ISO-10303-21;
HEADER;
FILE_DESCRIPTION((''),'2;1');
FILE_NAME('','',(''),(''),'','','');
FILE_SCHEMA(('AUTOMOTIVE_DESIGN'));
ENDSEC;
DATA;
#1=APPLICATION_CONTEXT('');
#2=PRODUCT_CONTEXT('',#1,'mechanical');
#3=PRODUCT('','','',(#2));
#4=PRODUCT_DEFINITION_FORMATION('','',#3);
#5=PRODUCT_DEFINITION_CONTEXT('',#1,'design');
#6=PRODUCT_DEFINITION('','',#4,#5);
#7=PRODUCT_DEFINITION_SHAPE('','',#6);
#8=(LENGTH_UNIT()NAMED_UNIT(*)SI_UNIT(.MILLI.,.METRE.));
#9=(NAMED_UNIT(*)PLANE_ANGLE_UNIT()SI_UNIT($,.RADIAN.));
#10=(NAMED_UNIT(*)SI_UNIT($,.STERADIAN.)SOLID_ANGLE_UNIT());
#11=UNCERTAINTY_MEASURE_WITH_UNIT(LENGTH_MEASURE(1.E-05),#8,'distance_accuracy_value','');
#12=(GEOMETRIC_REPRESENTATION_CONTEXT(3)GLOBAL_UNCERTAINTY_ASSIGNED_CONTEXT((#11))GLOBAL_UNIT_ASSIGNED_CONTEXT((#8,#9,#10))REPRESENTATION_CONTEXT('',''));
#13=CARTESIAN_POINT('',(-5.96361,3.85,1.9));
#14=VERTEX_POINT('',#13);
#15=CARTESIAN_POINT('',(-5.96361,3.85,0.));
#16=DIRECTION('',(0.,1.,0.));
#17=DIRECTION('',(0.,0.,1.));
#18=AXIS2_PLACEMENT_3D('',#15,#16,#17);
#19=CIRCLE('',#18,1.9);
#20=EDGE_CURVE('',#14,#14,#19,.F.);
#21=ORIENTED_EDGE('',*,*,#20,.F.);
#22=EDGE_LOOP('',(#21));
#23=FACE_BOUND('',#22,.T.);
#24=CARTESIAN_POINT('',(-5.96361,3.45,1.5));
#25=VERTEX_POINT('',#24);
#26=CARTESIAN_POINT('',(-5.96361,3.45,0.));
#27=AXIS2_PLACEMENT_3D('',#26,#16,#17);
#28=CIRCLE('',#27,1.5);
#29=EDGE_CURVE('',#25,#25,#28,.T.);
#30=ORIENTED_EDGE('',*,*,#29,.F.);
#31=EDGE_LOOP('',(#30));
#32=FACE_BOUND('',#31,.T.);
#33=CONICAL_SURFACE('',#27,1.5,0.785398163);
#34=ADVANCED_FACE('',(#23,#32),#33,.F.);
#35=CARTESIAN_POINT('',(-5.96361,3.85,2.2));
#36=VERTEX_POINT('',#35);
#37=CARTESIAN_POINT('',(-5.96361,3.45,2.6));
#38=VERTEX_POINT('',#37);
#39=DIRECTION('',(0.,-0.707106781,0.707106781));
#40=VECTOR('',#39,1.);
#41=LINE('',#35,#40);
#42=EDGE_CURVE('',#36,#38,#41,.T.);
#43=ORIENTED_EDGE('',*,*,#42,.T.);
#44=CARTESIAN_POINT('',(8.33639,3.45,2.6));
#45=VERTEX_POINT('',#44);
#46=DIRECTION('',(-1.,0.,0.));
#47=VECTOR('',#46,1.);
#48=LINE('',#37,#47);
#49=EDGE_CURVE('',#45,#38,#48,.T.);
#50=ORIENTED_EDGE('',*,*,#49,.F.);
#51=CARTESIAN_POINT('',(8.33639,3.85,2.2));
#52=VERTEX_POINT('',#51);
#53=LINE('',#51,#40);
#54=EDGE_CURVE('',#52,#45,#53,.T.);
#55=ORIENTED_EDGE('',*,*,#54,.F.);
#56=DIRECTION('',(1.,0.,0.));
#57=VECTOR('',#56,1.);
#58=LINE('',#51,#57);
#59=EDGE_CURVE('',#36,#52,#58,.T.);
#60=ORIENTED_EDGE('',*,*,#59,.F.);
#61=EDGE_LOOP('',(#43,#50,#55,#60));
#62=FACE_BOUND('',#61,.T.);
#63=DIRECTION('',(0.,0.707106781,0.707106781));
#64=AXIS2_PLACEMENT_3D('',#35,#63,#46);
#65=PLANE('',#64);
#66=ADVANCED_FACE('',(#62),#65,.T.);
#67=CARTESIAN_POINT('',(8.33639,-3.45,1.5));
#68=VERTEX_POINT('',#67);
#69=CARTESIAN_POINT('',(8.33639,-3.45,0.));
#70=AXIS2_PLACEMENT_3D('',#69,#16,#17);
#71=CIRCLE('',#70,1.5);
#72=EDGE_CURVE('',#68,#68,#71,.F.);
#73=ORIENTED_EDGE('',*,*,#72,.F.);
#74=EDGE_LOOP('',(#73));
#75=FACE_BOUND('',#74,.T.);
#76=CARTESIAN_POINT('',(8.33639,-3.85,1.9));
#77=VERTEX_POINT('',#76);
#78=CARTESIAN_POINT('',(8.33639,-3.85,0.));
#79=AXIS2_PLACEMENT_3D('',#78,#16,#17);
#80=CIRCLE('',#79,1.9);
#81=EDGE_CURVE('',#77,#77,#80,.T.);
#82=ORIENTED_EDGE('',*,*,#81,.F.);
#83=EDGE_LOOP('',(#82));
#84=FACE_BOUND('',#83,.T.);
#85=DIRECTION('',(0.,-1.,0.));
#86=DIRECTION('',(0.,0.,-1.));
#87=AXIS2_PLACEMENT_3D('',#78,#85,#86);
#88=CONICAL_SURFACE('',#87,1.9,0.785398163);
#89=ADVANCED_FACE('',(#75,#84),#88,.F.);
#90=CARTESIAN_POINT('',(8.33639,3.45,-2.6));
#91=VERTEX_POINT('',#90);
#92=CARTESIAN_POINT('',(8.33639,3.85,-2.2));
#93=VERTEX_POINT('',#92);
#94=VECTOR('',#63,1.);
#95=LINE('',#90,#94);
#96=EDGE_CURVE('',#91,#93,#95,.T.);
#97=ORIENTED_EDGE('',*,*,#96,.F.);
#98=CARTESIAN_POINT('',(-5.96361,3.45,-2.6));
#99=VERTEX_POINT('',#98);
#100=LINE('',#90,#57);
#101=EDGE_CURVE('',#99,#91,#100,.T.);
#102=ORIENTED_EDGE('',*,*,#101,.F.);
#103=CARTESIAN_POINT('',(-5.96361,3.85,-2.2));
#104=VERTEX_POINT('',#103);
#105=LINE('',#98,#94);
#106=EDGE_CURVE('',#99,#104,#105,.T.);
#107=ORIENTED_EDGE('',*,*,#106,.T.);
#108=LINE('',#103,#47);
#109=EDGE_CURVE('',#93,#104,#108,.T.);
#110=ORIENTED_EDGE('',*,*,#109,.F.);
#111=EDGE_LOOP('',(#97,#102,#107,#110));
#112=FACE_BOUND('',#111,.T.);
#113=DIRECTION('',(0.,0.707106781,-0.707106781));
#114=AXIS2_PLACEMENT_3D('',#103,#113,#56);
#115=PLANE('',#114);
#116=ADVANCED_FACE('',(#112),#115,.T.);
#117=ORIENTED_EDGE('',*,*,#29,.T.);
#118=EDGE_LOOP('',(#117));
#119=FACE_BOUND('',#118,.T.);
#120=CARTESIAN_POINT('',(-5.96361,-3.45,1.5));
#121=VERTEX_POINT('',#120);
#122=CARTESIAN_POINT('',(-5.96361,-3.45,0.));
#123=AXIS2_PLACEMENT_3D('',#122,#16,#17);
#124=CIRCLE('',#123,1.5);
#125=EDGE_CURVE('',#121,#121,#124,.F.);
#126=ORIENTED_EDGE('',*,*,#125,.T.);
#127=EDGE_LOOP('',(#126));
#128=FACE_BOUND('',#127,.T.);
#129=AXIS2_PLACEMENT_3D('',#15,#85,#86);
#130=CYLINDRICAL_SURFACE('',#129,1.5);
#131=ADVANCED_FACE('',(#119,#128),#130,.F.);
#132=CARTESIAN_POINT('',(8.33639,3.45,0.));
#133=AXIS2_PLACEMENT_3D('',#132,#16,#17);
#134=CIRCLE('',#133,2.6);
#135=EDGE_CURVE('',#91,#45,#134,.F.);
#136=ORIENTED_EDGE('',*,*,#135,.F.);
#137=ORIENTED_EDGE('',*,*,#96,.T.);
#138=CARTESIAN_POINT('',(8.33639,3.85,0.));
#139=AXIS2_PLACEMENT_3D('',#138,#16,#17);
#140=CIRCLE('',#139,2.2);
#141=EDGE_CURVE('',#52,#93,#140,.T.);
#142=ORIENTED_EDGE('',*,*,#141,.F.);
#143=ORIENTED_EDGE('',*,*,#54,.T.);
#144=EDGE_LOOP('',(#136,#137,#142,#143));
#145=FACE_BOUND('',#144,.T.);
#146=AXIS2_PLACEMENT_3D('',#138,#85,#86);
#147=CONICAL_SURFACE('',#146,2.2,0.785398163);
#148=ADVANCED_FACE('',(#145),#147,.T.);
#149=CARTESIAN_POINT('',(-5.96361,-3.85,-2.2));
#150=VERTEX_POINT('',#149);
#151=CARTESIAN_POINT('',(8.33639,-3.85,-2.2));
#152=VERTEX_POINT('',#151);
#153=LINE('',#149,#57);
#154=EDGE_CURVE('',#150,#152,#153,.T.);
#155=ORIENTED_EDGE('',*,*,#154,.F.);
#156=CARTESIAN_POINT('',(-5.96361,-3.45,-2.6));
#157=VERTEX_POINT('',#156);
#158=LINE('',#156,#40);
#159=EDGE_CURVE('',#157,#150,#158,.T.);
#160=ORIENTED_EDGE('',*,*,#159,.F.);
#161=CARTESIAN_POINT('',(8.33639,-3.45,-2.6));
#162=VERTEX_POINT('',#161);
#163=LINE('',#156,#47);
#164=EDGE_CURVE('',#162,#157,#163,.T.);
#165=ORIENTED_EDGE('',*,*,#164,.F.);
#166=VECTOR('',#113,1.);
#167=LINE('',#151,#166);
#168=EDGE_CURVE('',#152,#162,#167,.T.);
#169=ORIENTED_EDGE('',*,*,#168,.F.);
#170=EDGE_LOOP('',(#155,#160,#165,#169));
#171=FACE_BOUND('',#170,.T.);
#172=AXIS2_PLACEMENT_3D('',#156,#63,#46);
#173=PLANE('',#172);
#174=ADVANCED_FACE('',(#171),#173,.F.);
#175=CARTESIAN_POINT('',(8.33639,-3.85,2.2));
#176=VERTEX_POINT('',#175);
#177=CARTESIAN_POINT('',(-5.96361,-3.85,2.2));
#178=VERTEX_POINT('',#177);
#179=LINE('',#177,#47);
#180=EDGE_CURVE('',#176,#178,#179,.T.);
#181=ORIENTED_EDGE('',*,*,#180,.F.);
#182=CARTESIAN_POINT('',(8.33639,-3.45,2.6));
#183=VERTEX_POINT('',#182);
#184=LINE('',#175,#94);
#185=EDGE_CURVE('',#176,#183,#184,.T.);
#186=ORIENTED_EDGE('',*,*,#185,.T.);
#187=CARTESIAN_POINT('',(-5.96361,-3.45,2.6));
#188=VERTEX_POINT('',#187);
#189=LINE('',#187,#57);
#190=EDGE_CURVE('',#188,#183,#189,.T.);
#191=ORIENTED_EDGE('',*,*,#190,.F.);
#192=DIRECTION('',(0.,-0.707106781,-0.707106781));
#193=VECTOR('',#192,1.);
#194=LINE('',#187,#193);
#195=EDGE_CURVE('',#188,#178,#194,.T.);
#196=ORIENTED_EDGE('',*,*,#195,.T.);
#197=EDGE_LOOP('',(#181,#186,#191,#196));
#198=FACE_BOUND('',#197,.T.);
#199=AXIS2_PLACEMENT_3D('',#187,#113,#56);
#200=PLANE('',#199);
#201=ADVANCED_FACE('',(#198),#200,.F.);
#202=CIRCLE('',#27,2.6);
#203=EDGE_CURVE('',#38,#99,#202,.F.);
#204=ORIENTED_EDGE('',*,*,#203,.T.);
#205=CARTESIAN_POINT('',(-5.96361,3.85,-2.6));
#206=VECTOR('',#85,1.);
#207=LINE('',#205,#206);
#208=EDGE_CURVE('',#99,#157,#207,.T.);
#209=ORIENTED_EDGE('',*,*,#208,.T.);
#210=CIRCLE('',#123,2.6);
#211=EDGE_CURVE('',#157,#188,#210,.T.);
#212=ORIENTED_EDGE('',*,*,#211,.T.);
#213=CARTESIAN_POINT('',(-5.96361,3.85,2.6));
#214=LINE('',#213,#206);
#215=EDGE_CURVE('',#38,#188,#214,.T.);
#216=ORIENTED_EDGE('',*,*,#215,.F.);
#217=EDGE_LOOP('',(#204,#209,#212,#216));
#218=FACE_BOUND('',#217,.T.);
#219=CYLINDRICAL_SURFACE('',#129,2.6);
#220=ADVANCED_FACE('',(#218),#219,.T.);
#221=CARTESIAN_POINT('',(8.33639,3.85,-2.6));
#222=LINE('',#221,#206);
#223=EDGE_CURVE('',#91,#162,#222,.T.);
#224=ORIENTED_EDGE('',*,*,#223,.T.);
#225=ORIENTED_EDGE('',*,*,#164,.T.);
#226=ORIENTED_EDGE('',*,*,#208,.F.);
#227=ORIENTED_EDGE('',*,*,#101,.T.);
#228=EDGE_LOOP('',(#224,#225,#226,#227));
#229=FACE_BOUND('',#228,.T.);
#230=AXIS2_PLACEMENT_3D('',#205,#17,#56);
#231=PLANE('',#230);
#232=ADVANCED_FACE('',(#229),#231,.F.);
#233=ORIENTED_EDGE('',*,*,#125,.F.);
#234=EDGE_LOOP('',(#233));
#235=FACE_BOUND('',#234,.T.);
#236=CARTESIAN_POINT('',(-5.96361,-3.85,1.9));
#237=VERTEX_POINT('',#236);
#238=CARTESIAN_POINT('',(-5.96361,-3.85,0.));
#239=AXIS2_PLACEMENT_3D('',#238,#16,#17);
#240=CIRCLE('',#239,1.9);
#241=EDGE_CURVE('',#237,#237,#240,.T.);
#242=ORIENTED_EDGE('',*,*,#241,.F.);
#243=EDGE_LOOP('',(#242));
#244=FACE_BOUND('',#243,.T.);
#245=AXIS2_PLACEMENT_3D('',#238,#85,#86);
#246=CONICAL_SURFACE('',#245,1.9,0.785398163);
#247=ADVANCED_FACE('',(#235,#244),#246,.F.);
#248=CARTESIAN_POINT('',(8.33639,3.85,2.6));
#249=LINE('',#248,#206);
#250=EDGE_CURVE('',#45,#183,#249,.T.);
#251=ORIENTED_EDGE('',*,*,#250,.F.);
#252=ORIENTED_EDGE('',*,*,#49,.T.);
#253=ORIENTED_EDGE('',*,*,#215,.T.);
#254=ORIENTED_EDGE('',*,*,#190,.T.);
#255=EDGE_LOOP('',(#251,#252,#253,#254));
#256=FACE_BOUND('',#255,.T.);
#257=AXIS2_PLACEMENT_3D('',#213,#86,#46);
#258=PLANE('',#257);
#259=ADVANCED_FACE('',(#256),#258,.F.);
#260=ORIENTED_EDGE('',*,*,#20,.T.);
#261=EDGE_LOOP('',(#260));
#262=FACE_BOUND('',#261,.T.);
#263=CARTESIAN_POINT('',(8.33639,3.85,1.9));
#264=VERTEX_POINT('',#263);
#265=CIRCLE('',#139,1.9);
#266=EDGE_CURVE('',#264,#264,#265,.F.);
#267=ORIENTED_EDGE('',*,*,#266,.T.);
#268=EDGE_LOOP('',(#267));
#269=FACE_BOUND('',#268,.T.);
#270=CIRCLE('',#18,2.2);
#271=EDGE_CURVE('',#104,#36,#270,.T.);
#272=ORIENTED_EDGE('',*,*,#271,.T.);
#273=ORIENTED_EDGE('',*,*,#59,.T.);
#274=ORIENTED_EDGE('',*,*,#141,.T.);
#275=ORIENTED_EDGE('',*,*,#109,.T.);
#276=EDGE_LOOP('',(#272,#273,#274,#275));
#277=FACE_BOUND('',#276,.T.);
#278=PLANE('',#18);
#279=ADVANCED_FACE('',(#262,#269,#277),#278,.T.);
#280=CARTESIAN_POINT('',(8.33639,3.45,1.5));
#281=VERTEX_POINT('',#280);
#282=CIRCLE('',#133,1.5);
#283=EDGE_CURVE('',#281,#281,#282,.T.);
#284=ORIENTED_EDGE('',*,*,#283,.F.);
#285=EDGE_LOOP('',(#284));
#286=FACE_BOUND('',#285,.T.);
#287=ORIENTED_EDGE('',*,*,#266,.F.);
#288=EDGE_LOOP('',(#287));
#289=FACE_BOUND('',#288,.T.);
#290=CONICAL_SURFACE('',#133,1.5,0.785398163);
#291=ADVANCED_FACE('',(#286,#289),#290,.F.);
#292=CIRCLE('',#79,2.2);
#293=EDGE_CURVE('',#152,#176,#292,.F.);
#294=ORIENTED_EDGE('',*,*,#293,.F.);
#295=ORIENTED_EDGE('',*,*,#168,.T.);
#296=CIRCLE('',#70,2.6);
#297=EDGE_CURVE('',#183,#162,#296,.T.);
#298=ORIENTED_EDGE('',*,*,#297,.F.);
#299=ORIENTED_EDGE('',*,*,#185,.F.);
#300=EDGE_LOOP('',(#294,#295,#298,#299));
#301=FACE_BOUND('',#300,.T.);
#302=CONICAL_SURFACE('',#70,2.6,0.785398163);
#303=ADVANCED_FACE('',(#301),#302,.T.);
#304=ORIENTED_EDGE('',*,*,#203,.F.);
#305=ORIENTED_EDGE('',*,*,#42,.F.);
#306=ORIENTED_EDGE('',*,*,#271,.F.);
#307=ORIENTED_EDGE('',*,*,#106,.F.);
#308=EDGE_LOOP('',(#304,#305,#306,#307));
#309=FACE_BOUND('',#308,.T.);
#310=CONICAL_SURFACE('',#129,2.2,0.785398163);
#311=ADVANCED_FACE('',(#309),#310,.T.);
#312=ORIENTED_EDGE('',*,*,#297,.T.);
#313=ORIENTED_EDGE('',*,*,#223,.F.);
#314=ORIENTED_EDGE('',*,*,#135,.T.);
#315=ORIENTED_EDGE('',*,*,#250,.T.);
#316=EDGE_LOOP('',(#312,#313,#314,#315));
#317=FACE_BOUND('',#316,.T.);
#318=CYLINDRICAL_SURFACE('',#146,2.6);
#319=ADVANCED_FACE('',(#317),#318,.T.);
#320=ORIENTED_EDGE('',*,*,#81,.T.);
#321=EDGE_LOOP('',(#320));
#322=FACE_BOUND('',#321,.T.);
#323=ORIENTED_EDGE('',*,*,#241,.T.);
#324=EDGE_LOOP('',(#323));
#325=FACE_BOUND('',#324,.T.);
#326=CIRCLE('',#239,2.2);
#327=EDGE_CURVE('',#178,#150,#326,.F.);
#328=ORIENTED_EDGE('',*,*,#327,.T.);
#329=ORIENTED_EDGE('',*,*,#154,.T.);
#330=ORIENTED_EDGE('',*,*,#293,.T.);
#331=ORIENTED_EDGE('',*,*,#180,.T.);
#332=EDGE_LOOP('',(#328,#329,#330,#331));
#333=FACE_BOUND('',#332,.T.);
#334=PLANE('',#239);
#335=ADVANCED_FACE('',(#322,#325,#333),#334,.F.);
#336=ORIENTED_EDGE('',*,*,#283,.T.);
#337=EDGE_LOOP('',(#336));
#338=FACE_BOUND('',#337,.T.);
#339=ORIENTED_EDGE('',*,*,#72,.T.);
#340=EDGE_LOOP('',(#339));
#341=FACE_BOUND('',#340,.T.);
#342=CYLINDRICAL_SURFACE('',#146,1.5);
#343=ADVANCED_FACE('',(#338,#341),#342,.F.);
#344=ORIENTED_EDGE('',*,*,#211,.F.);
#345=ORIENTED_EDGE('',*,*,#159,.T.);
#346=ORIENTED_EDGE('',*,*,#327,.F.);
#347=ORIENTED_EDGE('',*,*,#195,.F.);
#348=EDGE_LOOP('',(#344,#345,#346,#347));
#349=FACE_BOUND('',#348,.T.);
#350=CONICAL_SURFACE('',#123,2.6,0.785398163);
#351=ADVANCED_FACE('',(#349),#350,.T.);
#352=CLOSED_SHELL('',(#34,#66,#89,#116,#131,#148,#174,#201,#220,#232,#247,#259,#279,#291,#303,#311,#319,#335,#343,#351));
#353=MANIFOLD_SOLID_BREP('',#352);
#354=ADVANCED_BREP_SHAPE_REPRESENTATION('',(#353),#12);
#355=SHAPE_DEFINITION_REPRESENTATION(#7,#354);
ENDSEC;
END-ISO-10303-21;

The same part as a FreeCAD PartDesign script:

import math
import FreeCAD as App
import Part
import Sketcher

V = App.Vector
Q = App.Units.Quantity


def edges_at(feature, points):
    """Names of the edges that pass closest to the given points."""
    edges = feature.Shape.Edges
    near = lambda p: min(range(len(edges)), key=lambda i: edges[i].distToShape(Part.Vertex(*p))[0])
    return sorted({f"Edge{near(p) + 1}" for p in points})

doc = App.newDocument("Part")
params = doc.addObject("Spreadsheet::Sheet", "Params")
for row, (alias, value) in enumerate([
    ("sketch1_diameter", "3 mm"),
    ("sketch1_radius", "2.6 mm"),
    ("sketch1_width", "14.3 mm"),
    ("pad1_length", "7.7 mm"),
    ("chamfer_size", "0.4 mm"),
], start=1):
    params.set(f"A{row}", alias)
    params.set(f"B{row}", "=" + value)
    params.setAlias(f"B{row}", alias)

body = doc.addObject("PartDesign::Body", "Body")

# Sketch on XZ plane
sketch1 = doc.addObject("Sketcher::SketchObject", "Sketch")
body.addObject(sketch1)
sketch1.AttachmentSupport = (doc.XZ_Plane, [""])
sketch1.MapMode = "FlatFace"
sketch1.addGeometry(Part.LineSegment(V(8.3, -2.6, 0), V(-6, -2.6, 0)), False)
sketch1.addGeometry(Part.ArcOfCircle(Part.Circle(V(-6, 0, 0), V(0, 0, 1), 2.6), math.radians(90), math.radians(270)), False)
sketch1.addGeometry(Part.LineSegment(V(-6, 2.6, 0), V(8.3, 2.6, 0)), False)
sketch1.addGeometry(Part.ArcOfCircle(Part.Circle(V(8.3, 0, 0), V(0, 0, 1), 2.6), math.radians(-90), math.radians(90)), False)
sketch1.addGeometry(Part.Circle(V(8.3, 0, 0), V(0, 0, 1), 1.5), False)
sketch1.addGeometry(Part.Circle(V(-6, 0, 0), V(0, 0, 1), 1.5), False)
sketch1.addConstraint(Sketcher.Constraint("Tangent", 0, 2, 1, 2))
sketch1.addConstraint(Sketcher.Constraint("Tangent", 1, 1, 2, 1))
sketch1.addConstraint(Sketcher.Constraint("Tangent", 2, 2, 3, 2))
sketch1.addConstraint(Sketcher.Constraint("Tangent", 3, 1, 0, 1))
sketch1.addConstraint(Sketcher.Constraint("Horizontal", 0))
sketch1.addConstraint(Sketcher.Constraint("Horizontal", 2))
sketch1.addConstraint(Sketcher.Constraint("Coincident", 4, 3, 3, 3))
sketch1.addConstraint(Sketcher.Constraint("Coincident", 5, 3, 1, 3))
sketch1.addConstraint(Sketcher.Constraint("Equal", 4, 5))
sketch1.addConstraint(Sketcher.Constraint("PointOnObject", 1, 3, -1))
sketch1.addConstraint(Sketcher.Constraint("Diameter", 4, Q("3 mm")))
sketch1.addConstraint(Sketcher.Constraint("Radius", 1, Q("2.6 mm")))
sketch1.addConstraint(Sketcher.Constraint("DistanceX", 0, 2, 0, 1, Q("14.3 mm")))
sketch1.addConstraint(Sketcher.Constraint("DistanceX", 1, 3, -1, 1, Q("5.96361 mm")))
sketch1.setExpression("Constraints[10]", "Params.sketch1_diameter")
sketch1.setExpression("Constraints[11]", "Params.sketch1_radius")
sketch1.setExpression("Constraints[12]", "Params.sketch1_width")
pad1 = doc.addObject("PartDesign::Pad", "Pad")
body.addObject(pad1)
pad1.Profile = sketch1
pad1.setExpression("Length", "Params.pad1_length")
pad1.Midplane = True
doc.recompute()

chamfer = doc.addObject("PartDesign::Chamfer", "Chamfer")
body.addObject(chamfer)
chamfer.Base = (pad1, edges_at(pad1, [
    (-7.464, -3.85, 0),
    (-7.464, 3.85, 0),
    (10.936, 3.85, 0),
    (6.836, -3.85, 0),
    (6.836, 3.85, 0),
    (1.186, 3.85, -2.6),
    (-8.564, 3.85, 0),
    (1.186, -3.85, -2.6),
    (10.936, -3.85, 0),
    (1.186, -3.85, 2.6),
    (-8.564, -3.85, 0),
    (1.186, 3.85, 2.6),
]))
chamfer.setExpression("Size", "Params.chamfer_size")

doc.recompute()
